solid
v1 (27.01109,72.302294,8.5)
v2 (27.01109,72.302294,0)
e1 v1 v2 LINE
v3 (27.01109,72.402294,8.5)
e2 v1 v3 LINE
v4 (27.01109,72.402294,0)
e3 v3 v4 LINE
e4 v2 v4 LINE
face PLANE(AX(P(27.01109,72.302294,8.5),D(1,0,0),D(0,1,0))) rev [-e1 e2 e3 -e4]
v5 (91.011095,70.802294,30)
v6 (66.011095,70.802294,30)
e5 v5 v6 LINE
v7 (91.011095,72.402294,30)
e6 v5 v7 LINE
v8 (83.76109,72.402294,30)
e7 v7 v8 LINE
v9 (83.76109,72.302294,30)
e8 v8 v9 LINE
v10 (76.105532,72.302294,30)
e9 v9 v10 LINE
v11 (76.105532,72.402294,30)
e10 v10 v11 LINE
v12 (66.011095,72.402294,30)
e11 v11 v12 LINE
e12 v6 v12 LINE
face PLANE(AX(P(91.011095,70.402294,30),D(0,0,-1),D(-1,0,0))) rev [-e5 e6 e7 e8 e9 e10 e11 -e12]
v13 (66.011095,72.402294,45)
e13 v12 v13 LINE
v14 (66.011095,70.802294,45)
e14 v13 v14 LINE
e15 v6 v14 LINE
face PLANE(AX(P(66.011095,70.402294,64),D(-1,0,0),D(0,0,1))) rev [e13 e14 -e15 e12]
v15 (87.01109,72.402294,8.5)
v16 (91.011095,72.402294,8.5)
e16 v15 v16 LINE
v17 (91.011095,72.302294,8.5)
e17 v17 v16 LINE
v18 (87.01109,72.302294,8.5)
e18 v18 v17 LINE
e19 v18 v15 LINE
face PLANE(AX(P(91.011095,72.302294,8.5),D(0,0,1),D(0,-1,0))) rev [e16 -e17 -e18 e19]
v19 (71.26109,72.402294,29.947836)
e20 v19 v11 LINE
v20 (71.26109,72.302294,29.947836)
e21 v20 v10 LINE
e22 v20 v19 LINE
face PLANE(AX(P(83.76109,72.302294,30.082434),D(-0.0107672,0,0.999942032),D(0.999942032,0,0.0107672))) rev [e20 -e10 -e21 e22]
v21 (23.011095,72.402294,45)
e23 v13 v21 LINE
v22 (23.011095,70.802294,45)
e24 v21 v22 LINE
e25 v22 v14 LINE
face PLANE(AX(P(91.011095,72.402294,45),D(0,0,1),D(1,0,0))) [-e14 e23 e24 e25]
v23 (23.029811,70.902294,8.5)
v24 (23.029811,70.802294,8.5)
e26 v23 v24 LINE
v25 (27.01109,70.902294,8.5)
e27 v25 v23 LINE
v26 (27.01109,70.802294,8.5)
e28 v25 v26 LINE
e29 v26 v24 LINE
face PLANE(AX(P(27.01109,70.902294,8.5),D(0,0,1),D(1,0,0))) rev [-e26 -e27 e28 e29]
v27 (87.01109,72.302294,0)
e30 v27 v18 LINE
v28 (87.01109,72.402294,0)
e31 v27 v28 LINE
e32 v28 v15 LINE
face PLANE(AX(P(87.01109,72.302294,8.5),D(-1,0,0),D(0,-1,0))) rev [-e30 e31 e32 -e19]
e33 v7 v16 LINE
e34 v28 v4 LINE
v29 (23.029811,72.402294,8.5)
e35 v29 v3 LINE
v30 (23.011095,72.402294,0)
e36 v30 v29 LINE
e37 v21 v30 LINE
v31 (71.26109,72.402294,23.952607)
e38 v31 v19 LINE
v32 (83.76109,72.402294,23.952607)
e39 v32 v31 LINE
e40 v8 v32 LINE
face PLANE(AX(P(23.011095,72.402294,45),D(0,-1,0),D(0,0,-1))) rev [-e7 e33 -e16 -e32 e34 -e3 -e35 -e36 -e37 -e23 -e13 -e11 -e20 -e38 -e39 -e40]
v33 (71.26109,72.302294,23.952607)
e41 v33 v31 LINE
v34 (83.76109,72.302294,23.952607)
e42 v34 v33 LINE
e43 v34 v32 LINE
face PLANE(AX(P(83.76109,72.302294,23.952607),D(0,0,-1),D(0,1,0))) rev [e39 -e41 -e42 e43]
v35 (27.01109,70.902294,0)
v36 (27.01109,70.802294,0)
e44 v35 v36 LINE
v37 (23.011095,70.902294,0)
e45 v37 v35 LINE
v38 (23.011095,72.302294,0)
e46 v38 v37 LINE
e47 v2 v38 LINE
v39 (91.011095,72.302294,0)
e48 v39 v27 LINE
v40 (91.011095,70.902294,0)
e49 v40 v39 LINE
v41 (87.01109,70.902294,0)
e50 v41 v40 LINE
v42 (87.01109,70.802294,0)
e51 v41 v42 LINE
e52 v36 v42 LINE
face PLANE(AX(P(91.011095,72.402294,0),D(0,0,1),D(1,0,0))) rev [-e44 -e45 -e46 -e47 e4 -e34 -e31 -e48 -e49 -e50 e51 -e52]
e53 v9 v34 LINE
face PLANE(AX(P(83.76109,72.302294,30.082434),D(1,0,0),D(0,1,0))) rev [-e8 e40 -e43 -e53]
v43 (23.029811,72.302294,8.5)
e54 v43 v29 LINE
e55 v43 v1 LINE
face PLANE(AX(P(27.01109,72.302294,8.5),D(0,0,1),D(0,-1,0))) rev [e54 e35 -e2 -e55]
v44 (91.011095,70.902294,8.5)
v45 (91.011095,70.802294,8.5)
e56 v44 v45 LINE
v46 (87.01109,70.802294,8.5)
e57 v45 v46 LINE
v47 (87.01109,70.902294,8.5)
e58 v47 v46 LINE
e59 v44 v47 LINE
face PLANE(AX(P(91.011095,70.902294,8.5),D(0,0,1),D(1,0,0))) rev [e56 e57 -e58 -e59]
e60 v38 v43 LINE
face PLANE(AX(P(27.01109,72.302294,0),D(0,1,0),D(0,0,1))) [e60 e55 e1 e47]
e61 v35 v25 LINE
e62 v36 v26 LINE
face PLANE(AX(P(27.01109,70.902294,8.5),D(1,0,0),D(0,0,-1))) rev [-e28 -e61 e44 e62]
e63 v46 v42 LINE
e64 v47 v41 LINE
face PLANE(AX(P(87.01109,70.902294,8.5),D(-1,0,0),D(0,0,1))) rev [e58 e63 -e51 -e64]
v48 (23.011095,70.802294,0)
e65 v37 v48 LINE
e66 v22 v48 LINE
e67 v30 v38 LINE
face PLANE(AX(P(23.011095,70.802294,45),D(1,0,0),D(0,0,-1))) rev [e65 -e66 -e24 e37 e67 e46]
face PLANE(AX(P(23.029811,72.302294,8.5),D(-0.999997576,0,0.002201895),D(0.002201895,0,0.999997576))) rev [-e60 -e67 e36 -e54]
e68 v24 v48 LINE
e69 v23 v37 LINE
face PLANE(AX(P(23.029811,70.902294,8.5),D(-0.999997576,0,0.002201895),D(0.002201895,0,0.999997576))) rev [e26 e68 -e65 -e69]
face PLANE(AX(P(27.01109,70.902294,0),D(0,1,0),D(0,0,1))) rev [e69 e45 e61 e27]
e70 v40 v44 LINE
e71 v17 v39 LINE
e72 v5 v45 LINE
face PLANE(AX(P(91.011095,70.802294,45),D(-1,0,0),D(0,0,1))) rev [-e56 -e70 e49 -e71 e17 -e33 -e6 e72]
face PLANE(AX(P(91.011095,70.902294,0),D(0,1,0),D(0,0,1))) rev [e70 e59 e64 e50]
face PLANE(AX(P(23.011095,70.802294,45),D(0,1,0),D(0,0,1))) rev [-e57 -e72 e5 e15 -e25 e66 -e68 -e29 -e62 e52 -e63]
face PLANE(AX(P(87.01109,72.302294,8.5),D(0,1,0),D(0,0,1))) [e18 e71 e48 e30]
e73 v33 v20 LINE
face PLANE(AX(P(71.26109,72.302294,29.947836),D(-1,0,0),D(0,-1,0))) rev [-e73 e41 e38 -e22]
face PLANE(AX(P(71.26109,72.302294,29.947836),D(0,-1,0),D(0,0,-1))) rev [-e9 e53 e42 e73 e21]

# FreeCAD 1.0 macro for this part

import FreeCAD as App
import Part
import Sketcher
from FreeCAD import Vector


def add_polygon(sketch, points):
    """Adds a closed chain of lines whose ends are joined by coincident constraints."""
    first, n = sketch.GeometryCount, len(points)
    for a, b in zip(points, points[1:] + points[:1]):
        sketch.addGeometry(Part.LineSegment(App.Vector(*a, 0), App.Vector(*b, 0)), False)
    for i in range(n):
        sketch.addConstraint(Sketcher.Constraint("Coincident", first + i, 2, first + (i + 1) % n, 1))

doc = App.newDocument("Part")
body = doc.addObject("PartDesign::Body", "Body")

sketch1 = doc.addObject("Sketcher::SketchObject", "Sketch")
body.addObject(sketch1)
sketch1.AttachmentSupport = (doc.XY_Plane, [""])
sketch1.MapMode = "FlatFace"
add_polygon(sketch1, [(23, 72.4), (23, 70.8), (91, 70.8), (91, 72.4)])
sketch1.addConstraint(Sketcher.Constraint("Vertical", 0))
sketch1.addConstraint(Sketcher.Constraint("Horizontal", 1))
sketch1.addConstraint(Sketcher.Constraint("Vertical", 2))
sketch1.addConstraint(Sketcher.Constraint("Horizontal", 3))
sketch1.addConstraint(Sketcher.Constraint("DistanceX", 1, 1, 1, 2, 68.0))
sketch1.addConstraint(Sketcher.Constraint("DistanceY", 0, 2, 0, 1, 1.6))
sketch1.addConstraint(Sketcher.Constraint("DistanceX", -1, 1, 0, 2, 23.011095))
sketch1.addConstraint(Sketcher.Constraint("DistanceY", -1, 1, 0, 2, 70.802294))
pad1 = doc.addObject("PartDesign::Pad", "Pad")
body.addObject(pad1)
pad1.Profile = sketch1
pad1.Length = 45

sketch2 = doc.addObject("Sketcher::SketchObject", "Sketch001")
body.addObject(sketch2)
sketch2.AttachmentSupport = (doc.XZ_Plane, [""])
sketch2.MapMode = "FlatFace"
sketch2.AttachmentOffset = App.Placement(Vector(0, 0, -72.402294), App.Rotation())
add_polygon(sketch2, [(91, 64), (91, 30), (66, 30), (66, 64)])
sketch2.addConstraint(Sketcher.Constraint("Vertical", 0))
sketch2.addConstraint(Sketcher.Constraint("Horizontal", 1))
sketch2.addConstraint(Sketcher.Constraint("Vertical", 2))
sketch2.addConstraint(Sketcher.Constraint("Horizontal", 3))
sketch2.addConstraint(Sketcher.Constraint("DistanceX", 1, 2, 1, 1, 25.0))
sketch2.addConstraint(Sketcher.Constraint("DistanceY", 0, 2, 0, 1, 34.0))
sketch2.addConstraint(Sketcher.Constraint("DistanceY", -1, 1, 0, 2, 30.0))
sketch2.addConstraint(Sketcher.Constraint("DistanceX", -1, 1, 0, 2, 91.011095))
pocket1 = doc.addObject("PartDesign::Pocket", "Pocket")
body.addObject(pocket1)
pocket1.Profile = sketch2
pocket1.Length = 2
pocket1.Reversed = True

sketch3 = doc.addObject("Sketcher::SketchObject", "Sketch002")
body.addObject(sketch3)
sketch3.AttachmentSupport = (doc.XZ_Plane, [""])
sketch3.MapMode = "FlatFace"
sketch3.AttachmentOffset = App.Placement(Vector(0, 0, -72.402294), App.Rotation())
add_polygon(sketch3, [(91, 8.5), (91, 0), (87, 0), (87, 8.5)])
add_polygon(sketch3, [(27, 8.5), (27, 0), (23, 0), (23, 8.5)])
add_polygon(sketch3, [(83.8, 24), (71.3, 24), (71.3, 29.9), (83.8, 30.1)])
sketch3.addConstraint(Sketcher.Constraint("Vertical", 0))
sketch3.addConstraint(Sketcher.Constraint("Horizontal", 1))
sketch3.addConstraint(Sketcher.Constraint("Vertical", 2))
sketch3.addConstraint(Sketcher.Constraint("Horizontal", 3))
sketch3.addConstraint(Sketcher.Constraint("Vertical", 4))
sketch3.addConstraint(Sketcher.Constraint("Horizontal", 5))
sketch3.addConstraint(Sketcher.Constraint("Horizontal", 7))
sketch3.addConstraint(Sketcher.Constraint("Horizontal", 8))
sketch3.addConstraint(Sketcher.Constraint("Vertical", 9))
sketch3.addConstraint(Sketcher.Constraint("Vertical", 11))
sketch3.addConstraint(Sketcher.Constraint("PointOnObject", 0, 2, -1))
sketch3.addConstraint(Sketcher.Constraint("PointOnObject", 4, 2, -1))
sketch3.addConstraint(Sketcher.Constraint("Horizontal", 3, 2, 6, 2))
sketch3.addConstraint(Sketcher.Constraint("DistanceX", 8, 2, 8, 1, 12.5))
sketch3.addConstraint(Sketcher.Constraint("DistanceY", 0, 2, 0, 1, 8.5))
sketch3.addConstraint(Sketcher.Constraint("DistanceX", 4, 2, 1, 2, 60.0))
sketch3.addConstraint(Sketcher.Constraint("DistanceX", 5, 2, 0, 2, 68.0))
sketch3.addConstraint(Sketcher.Constraint("DistanceX", 8, 2, 2, 2, 15.75))
sketch3.addConstraint(Sketcher.Constraint("DistanceX", 7, 1, 7, 2, 3.981279))
sketch3.addConstraint(Sketcher.Constraint("DistanceY", 9, 1, 9, 2, 5.995229))
sketch3.addConstraint(Sketcher.Constraint("DistanceX", 1, 2, 1, 1, 4.000005))
sketch3.addConstraint(Sketcher.Constraint("DistanceY", 11, 2, 11, 1, 6.129827))
sketch3.addConstraint(Sketcher.Constraint("DistanceX", -1, 1, 1, 2, 87.01109))
sketch3.addConstraint(Sketcher.Constraint("DistanceY", -1, 1, 8, 2, 23.952607))
pocket2 = doc.addObject("PartDesign::Pocket", "Pocket001")
body.addObject(pocket2)
pocket2.Profile = sketch3
pocket2.Length = 0.1
pocket2.Reversed = True

sketch4 = doc.addObject("Sketcher::SketchObject", "Sketch003")
body.addObject(sketch4)
sketch4.AttachmentSupport = (doc.XZ_Plane, [""])
sketch4.MapMode = "FlatFace"
sketch4.AttachmentOffset = App.Placement(Vector(0, 0, -70.802294), App.Rotation())
add_polygon(sketch4, [(23, 8.5), (23, 0), (27, 0), (27, 8.5)])
add_polygon(sketch4, [(87, 8.5), (87, 0), (91, 0), (91, 8.5)])
sketch4.addConstraint(Sketcher.Constraint("Horizontal", 1))
sketch4.addConstraint(Sketcher.Constraint("Vertical", 2))
sketch4.addConstraint(Sketcher.Constraint("Horizontal", 3))
sketch4.addConstraint(Sketcher.Constraint("Vertical", 4))
sketch4.addConstraint(Sketcher.Constraint("Horizontal", 5))
sketch4.addConstraint(Sketcher.Constraint("Vertical", 6))
sketch4.addConstraint(Sketcher.Constraint("Horizontal", 7))
sketch4.addConstraint(Sketcher.Constraint("PointOnObject", 0, 2, -1))
sketch4.addConstraint(Sketcher.Constraint("PointOnObject", 4, 2, -1))
sketch4.addConstraint(Sketcher.Constraint("Horizontal", 3, 2, 6, 2))
sketch4.addConstraint(Sketcher.Constraint("DistanceY", 2, 1, 2, 2, 8.5))
sketch4.addConstraint(Sketcher.Constraint("DistanceX", 1, 2, 4, 2, 60.0))
sketch4.addConstraint(Sketcher.Constraint("DistanceX", 0, 2, 5, 2, 68.0))
sketch4.addConstraint(Sketcher.Constraint("DistanceX", 3, 2, 3, 1, 3.981279))
sketch4.addConstraint(Sketcher.Constraint("DistanceX", 1, 1, 1, 2, 3.999995))
sketch4.addConstraint(Sketcher.Constraint("DistanceX", -1, 1, 1, 2, 27.01109))
pocket3 = doc.addObject("PartDesign::Pocket", "Pocket002")
body.addObject(pocket3)
pocket3.Profile = sketch4
pocket3.Length = 0.1

doc.recompute()
